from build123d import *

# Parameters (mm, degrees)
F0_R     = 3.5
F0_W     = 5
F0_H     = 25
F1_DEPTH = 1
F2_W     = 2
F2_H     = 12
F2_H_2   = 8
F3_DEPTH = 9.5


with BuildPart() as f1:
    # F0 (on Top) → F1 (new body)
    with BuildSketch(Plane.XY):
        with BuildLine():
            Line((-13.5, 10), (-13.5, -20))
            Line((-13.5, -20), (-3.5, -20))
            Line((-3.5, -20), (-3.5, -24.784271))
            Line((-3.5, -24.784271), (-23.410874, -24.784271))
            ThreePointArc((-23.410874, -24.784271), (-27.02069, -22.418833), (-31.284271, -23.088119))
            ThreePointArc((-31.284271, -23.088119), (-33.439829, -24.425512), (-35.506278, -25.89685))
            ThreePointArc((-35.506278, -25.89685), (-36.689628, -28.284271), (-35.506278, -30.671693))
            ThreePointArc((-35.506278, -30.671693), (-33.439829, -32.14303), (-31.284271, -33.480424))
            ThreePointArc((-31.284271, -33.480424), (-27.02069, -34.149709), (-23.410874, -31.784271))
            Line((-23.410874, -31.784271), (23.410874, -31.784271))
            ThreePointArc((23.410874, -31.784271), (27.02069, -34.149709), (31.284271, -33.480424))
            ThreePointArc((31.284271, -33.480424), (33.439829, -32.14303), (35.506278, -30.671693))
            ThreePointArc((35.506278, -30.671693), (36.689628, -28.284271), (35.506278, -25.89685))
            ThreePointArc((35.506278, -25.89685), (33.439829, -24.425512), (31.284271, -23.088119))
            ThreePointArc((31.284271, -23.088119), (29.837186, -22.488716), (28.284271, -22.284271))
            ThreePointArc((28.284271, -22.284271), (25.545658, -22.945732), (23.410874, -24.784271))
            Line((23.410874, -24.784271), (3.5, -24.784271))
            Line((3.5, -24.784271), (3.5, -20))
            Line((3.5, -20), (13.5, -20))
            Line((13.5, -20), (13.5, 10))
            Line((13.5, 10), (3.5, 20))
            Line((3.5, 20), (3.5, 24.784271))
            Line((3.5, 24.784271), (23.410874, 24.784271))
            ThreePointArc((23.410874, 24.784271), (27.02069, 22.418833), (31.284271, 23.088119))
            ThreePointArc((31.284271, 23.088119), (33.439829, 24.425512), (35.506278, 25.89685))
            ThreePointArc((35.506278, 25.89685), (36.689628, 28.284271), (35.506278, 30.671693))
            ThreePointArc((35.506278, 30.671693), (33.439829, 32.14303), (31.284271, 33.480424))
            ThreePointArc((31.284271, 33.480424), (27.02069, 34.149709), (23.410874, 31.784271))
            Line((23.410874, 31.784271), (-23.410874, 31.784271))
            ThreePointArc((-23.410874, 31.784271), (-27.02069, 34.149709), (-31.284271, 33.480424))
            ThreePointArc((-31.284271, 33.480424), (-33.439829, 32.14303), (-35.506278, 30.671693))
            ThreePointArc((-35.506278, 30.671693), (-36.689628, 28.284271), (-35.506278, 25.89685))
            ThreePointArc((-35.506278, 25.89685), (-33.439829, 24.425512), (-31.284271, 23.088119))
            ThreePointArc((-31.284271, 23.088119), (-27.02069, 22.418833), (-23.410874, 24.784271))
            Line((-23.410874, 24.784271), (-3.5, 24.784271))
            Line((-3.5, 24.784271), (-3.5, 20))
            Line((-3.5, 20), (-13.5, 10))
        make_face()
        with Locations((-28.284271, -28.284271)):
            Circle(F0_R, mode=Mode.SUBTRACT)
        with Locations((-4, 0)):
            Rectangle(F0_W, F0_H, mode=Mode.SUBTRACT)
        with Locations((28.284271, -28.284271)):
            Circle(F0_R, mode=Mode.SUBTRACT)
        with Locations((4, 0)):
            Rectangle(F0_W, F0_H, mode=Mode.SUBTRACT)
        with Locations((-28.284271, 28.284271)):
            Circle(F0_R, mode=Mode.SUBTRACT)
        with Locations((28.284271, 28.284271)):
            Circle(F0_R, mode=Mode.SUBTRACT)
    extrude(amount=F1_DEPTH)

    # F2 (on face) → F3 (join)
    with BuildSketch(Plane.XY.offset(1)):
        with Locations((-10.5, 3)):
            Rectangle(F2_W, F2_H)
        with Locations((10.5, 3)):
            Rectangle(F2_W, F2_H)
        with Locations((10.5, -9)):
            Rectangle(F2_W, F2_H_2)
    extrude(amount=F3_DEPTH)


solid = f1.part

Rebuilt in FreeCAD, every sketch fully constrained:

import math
import FreeCAD as App
import Part
import Sketcher

V = App.Vector
Q = App.Units.Quantity

doc = App.newDocument("Part")
params = doc.addObject("Spreadsheet::Sheet", "Params")
for row, (alias, value) in enumerate([
    ("sketch1_diameter", "7 mm"),
    ("sketch1_radius", "5.999999 mm"),
    ("sketch1_radius2", "2.999999 mm"),
    ("sketch1_width", "10 mm"),
    ("sketch1_width2", "5 mm"),
    ("pad1_length", "1 mm"),
    ("sketch2_width", "2 mm"),
    ("sketch2_height", "12 mm"),
    ("sketch2_height2", "8 mm"),
    ("pad2_length", "9.5 mm"),
], start=1):
    params.set(f"A{row}", alias)
    params.set(f"B{row}", "=" + value)
    params.setAlias(f"B{row}", alias)

body = doc.addObject("PartDesign::Body", "Body")

sketch1 = doc.addObject("Sketcher::SketchObject", "Sketch")
body.addObject(sketch1)
sketch1.AttachmentSupport = (doc.XY_Plane, [""])
sketch1.MapMode = "FlatFace"
sketch1.addGeometry(Part.LineSegment(V(-13.5, 10, 0), V(-13.5, -20, 0)), False)
sketch1.addGeometry(Part.LineSegment(V(-13.5, -20, 0), V(-3.5, -20, 0)), False)
sketch1.addGeometry(Part.LineSegment(V(-3.5, -20, 0), V(-3.5, -24.8, 0)), False)
sketch1.addGeometry(Part.LineSegment(V(-3.5, -24.8, 0), V(-23.4, -24.8, 0)), False)
sketch1.addGeometry(Part.ArcOfCircle(Part.Circle(V(-28.3, -28.3, 0), V(0, 0, 1), 6), math.radians(36), math.radians(120)), False)
sketch1.addGeometry(Part.ArcOfCircle(Part.Circle(V(-11.3, -57.7, 0), V(0, 0, 1), 40), math.radians(120), math.radians(127.27)), False)
sketch1.addGeometry(Part.ArcOfCircle(Part.Circle(V(-33.7, -28.3, 0), V(0, 0, 1), 3), math.radians(127), math.radians(233)), False)
sketch1.addGeometry(Part.ArcOfCircle(Part.Circle(V(-11.3, 1.2, 0), V(0, 0, 1), 40), math.radians(-127.27), math.radians(-120)), False)
sketch1.addGeometry(Part.ArcOfCircle(Part.Circle(V(-28.3, -28.3, 0), V(0, 0, 1), 6), math.radians(-120), math.radians(-36)), False)
sketch1.addGeometry(Part.LineSegment(V(-23.4, -31.8, 0), V(23.4, -31.8, 0)), False)
sketch1.addGeometry(Part.ArcOfCircle(Part.Circle(V(28.3, -28.3, 0), V(0, 0, 1), 6), math.radians(-144), math.radians(-60)), False)
sketch1.addGeometry(Part.ArcOfCircle(Part.Circle(V(11.3, 1.2, 0), V(0, 0, 1), 40), math.radians(-60), math.radians(-52.73)), False)
sketch1.addGeometry(Part.ArcOfCircle(Part.Circle(V(33.7, -28.3, 0), V(0, 0, 1), 3), math.radians(-53), math.radians(53)), False)
sketch1.addGeometry(Part.ArcOfCircle(Part.Circle(V(11.3, -57.7, 0), V(0, 0, 1), 40), math.radians(52.73), math.radians(60)), False)
sketch1.addGeometry(Part.ArcOfCircle(Part.Circle(V(28.3, -28.3, 0), V(0, 0, 1), 6), math.radians(60), math.radians(90)), False)
sketch1.addGeometry(Part.ArcOfCircle(Part.Circle(V(28.3, -28.3, 0), V(0, 0, 1), 6), math.radians(90), math.radians(144)), False)
sketch1.addGeometry(Part.LineSegment(V(23.4, -24.8, 0), V(3.5, -24.8, 0)), False)
sketch1.addGeometry(Part.LineSegment(V(3.5, -24.8, 0), V(3.5, -20, 0)), False)
sketch1.addGeometry(Part.LineSegment(V(3.5, -20, 0), V(13.5, -20, 0)), False)
sketch1.addGeometry(Part.LineSegment(V(13.5, -20, 0), V(13.5, 10, 0)), False)
sketch1.addGeometry(Part.LineSegment(V(13.5, 10, 0), V(3.5, 20, 0)), False)
sketch1.addGeometry(Part.LineSegment(V(3.5, 20, 0), V(3.5, 24.8, 0)), False)
sketch1.addGeometry(Part.LineSegment(V(3.5, 24.8, 0), V(23.4, 24.8, 0)), False)
sketch1.addGeometry(Part.ArcOfCircle(Part.Circle(V(28.3, 28.3, 0), V(0, 0, 1), 6), math.radians(-144), math.radians(-60)), False)
sketch1.addGeometry(Part.ArcOfCircle(Part.Circle(V(11.3, 57.7, 0), V(0, 0, 1), 40), math.radians(-60), math.radians(-52.73)), False)
sketch1.addGeometry(Part.ArcOfCircle(Part.Circle(V(33.7, 28.3, 0), V(0, 0, 1), 3), math.radians(-53), math.radians(53)), False)
sketch1.addGeometry(Part.ArcOfCircle(Part.Circle(V(11.3, -1.2, 0), V(0, 0, 1), 40), math.radians(52.73), math.radians(60)), False)
sketch1.addGeometry(Part.ArcOfCircle(Part.Circle(V(28.3, 28.3, 0), V(0, 0, 1), 6), math.radians(60), math.radians(144)), False)
sketch1.addGeometry(Part.LineSegment(V(23.4, 31.8, 0), V(-23.4, 31.8, 0)), False)
sketch1.addGeometry(Part.ArcOfCircle(Part.Circle(V(-28.3, 28.3, 0), V(0, 0, 1), 6), math.radians(36), math.radians(120)), False)
sketch1.addGeometry(Part.ArcOfCircle(Part.Circle(V(-11.3, -1.2, 0), V(0, 0, 1), 40), math.radians(120), math.radians(127.27)), False)
sketch1.addGeometry(Part.ArcOfCircle(Part.Circle(V(-33.7, 28.3, 0), V(0, 0, 1), 3), math.radians(127), math.radians(233)), False)
sketch1.addGeometry(Part.ArcOfCircle(Part.Circle(V(-11.3, 57.7, 0), V(0, 0, 1), 40), math.radians(-127.27), math.radians(-120)), False)
sketch1.addGeometry(Part.ArcOfCircle(Part.Circle(V(-28.3, 28.3, 0), V(0, 0, 1), 6), math.radians(-120), math.radians(-36)), False)
sketch1.addGeometry(Part.LineSegment(V(-23.4, 24.8, 0), V(-3.5, 24.8, 0)), False)
sketch1.addGeometry(Part.LineSegment(V(-3.5, 24.8, 0), V(-3.5, 20, 0)), False)
sketch1.addGeometry(Part.LineSegment(V(-3.5, 20, 0), V(-13.5, 10, 0)), False)
sketch1.addGeometry(Part.Circle(V(-28.3, -28.3, 0), V(0, 0, 1), 3.5), False)
sketch1.addGeometry(Part.LineSegment(V(-1.5, -12.5, 0), V(-6.5, -12.5, 0)), False)
sketch1.addGeometry(Part.LineSegment(V(-6.5, -12.5, 0), V(-6.5, 12.5, 0)), False)
sketch1.addGeometry(Part.LineSegment(V(-6.5, 12.5, 0), V(-1.5, 12.5, 0)), False)
sketch1.addGeometry(Part.LineSegment(V(-1.5, 12.5, 0), V(-1.5, -12.5, 0)), False)
sketch1.addGeometry(Part.Circle(V(28.3, -28.3, 0), V(0, 0, 1), 3.5), False)
sketch1.addGeometry(Part.LineSegment(V(6.5, -12.5, 0), V(1.5, -12.5, 0)), False)
sketch1.addGeometry(Part.LineSegment(V(1.5, -12.5, 0), V(1.5, 12.5, 0)), False)
sketch1.addGeometry(Part.LineSegment(V(1.5, 12.5, 0), V(6.5, 12.5, 0)), False)
sketch1.addGeometry(Part.LineSegment(V(6.5, 12.5, 0), V(6.5, -12.5, 0)), False)
sketch1.addGeometry(Part.Circle(V(-28.3, 28.3, 0), V(0, 0, 1), 3.5), False)
sketch1.addGeometry(Part.Circle(V(28.3, 28.3, 0), V(0, 0, 1), 3.5), False)
sketch1.addConstraint(Sketcher.Constraint("Coincident", 0, 2, 1, 1))
sketch1.addConstraint(Sketcher.Constraint("Coincident", 1, 2, 2, 1))
sketch1.addConstraint(Sketcher.Constraint("Coincident", 2, 2, 3, 1))
sketch1.addConstraint(Sketcher.Constraint("Coincident", 3, 2, 4, 1))
sketch1.addConstraint(Sketcher.Constraint("Tangent", 4, 2, 5, 1))
sketch1.addConstraint(Sketcher.Constraint("Tangent", 5, 2, 6, 1))
sketch1.addConstraint(Sketcher.Constraint("Tangent", 6, 2, 7, 1))
sketch1.addConstraint(Sketcher.Constraint("Tangent", 7, 2, 8, 1))
sketch1.addConstraint(Sketcher.Constraint("Coincident", 8, 2, 9, 1))
sketch1.addConstraint(Sketcher.Constraint("Coincident", 9, 2, 10, 1))
sketch1.addConstraint(Sketcher.Constraint("Tangent", 10, 2, 11, 1))
sketch1.addConstraint(Sketcher.Constraint("Tangent", 11, 2, 12, 1))
sketch1.addConstraint(Sketcher.Constraint("Tangent", 12, 2, 13, 1))
sketch1.addConstraint(Sketcher.Constraint("Tangent", 13, 2, 14, 1))
sketch1.addConstraint(Sketcher.Constraint("Tangent", 14, 2, 15, 1))
sketch1.addConstraint(Sketcher.Constraint("Coincident", 15, 2, 16, 1))
sketch1.addConstraint(Sketcher.Constraint("Coincident", 16, 2, 17, 1))
sketch1.addConstraint(Sketcher.Constraint("Coincident", 17, 2, 18, 1))
sketch1.addConstraint(Sketcher.Constraint("Coincident", 18, 2, 19, 1))
sketch1.addConstraint(Sketcher.Constraint("Coincident", 19, 2, 20, 1))
sketch1.addConstraint(Sketcher.Constraint("Coincident", 20, 2, 21, 1))
sketch1.addConstraint(Sketcher.Constraint("Coincident", 21, 2, 22, 1))
sketch1.addConstraint(Sketcher.Constraint("Coincident", 22, 2, 23, 1))
sketch1.addConstraint(Sketcher.Constraint("Tangent", 23, 2, 24, 1))
sketch1.addConstraint(Sketcher.Constraint("Tangent", 24, 2, 25, 1))
sketch1.addConstraint(Sketcher.Constraint("Tangent", 25, 2, 26, 1))
sketch1.addConstraint(Sketcher.Constraint("Tangent", 26, 2, 27, 1))
sketch1.addConstraint(Sketcher.Constraint("Coincident", 27, 2, 28, 1))
sketch1.addConstraint(Sketcher.Constraint("Coincident", 28, 2, 29, 1))
sketch1.addConstraint(Sketcher.Constraint("Tangent", 29, 2, 30, 1))
sketch1.addConstraint(Sketcher.Constraint("Tangent", 30, 2, 31, 1))
sketch1.addConstraint(Sketcher.Constraint("Tangent", 31, 2, 32, 1))
sketch1.addConstraint(Sketcher.Constraint("Tangent", 32, 2, 33, 1))
sketch1.addConstraint(Sketcher.Constraint("Coincident", 33, 2, 34, 1))
sketch1.addConstraint(Sketcher.Constraint("Coincident", 34, 2, 35, 1))
sketch1.addConstraint(Sketcher.Constraint("Coincident", 35, 2, 36, 1))
sketch1.addConstraint(Sketcher.Constraint("Coincident", 36, 2, 0, 1))
sketch1.addConstraint(Sketcher.Constraint("Coincident", 38, 2, 39, 1))
sketch1.addConstraint(Sketcher.Constraint("Coincident", 39, 2, 40, 1))
sketch1.addConstraint(Sketcher.Constraint("Coincident", 40, 2, 41, 1))
sketch1.addConstraint(Sketcher.Constraint("Coincident", 41, 2, 38, 1))
sketch1.addConstraint(Sketcher.Constraint("Coincident", 43, 2, 44, 1))
sketch1.addConstraint(Sketcher.Constraint("Coincident", 44, 2, 45, 1))
sketch1.addConstraint(Sketcher.Constraint("Coincident", 45, 2, 46, 1))
sketch1.addConstraint(Sketcher.Constraint("Coincident", 46, 2, 43, 1))
sketch1.addConstraint(Sketcher.Constraint("Vertical", 0))
sketch1.addConstraint(Sketcher.Constraint("Horizontal", 1))
sketch1.addConstraint(Sketcher.Constraint("Vertical", 2))
sketch1.addConstraint(Sketcher.Constraint("Horizontal", 3))
sketch1.addConstraint(Sketcher.Constraint("Horizontal", 9))
sketch1.addConstraint(Sketcher.Constraint("Horizontal", 16))
sketch1.addConstraint(Sketcher.Constraint("Vertical", 17))
sketch1.addConstraint(Sketcher.Constraint("Horizontal", 18))
sketch1.addConstraint(Sketcher.Constraint("Vertical", 19))
sketch1.addConstraint(Sketcher.Constraint("Vertical", 21))
sketch1.addConstraint(Sketcher.Constraint("Horizontal", 22))
sketch1.addConstraint(Sketcher.Constraint("Horizontal", 28))
sketch1.addConstraint(Sketcher.Constraint("Horizontal", 34))
sketch1.addConstraint(Sketcher.Constraint("Vertical", 35))
sketch1.addConstraint(Sketcher.Constraint("Horizontal", 38))
sketch1.addConstraint(Sketcher.Constraint("Vertical", 39))
sketch1.addConstraint(Sketcher.Constraint("Horizontal", 40))
sketch1.addConstraint(Sketcher.Constraint("Vertical", 41))
sketch1.addConstraint(Sketcher.Constraint("Horizontal", 43))
sketch1.addConstraint(Sketcher.Constraint("Vertical", 44))
sketch1.addConstraint(Sketcher.Constraint("Horizontal", 45))
sketch1.addConstraint(Sketcher.Constraint("Vertical", 46))
sketch1.addConstraint(Sketcher.Constraint("Coincident", 8, 3, 4, 3))
sketch1.addConstraint(Sketcher.Constraint("Coincident", 15, 3, 10, 3))
sketch1.addConstraint(Sketcher.Constraint("Coincident", 27, 3, 23, 3))
sketch1.addConstraint(Sketcher.Constraint("Coincident", 33, 3, 29, 3))
sketch1.addConstraint(Sketcher.Constraint("Coincident", 37, 3, 4, 3))
sketch1.addConstraint(Sketcher.Constraint("Coincident", 42, 3, 10, 3))
sketch1.addConstraint(Sketcher.Constraint("Coincident", 47, 3, 29, 3))
sketch1.addConstraint(Sketcher.Constraint("Coincident", 48, 3, 23, 3))
sketch1.addConstraint(Sketcher.Constraint("Equal", 4, 8))
sketch1.addConstraint(Sketcher.Constraint("Equal", 8, 10))
sketch1.addConstraint(Sketcher.Constraint("Equal", 7, 11))
sketch1.addConstraint(Sketcher.Constraint("Equal", 6, 12))
sketch1.addConstraint(Sketcher.Constraint("Equal", 5, 13))
sketch1.addConstraint(Sketcher.Constraint("Equal", 10, 15))
sketch1.addConstraint(Sketcher.Constraint("Equal", 15, 23))
sketch1.addConstraint(Sketcher.Constraint("Equal", 13, 24))
sketch1.addConstraint(Sketcher.Constraint("Equal", 12, 25))
sketch1.addConstraint(Sketcher.Constraint("Equal", 11, 26))
sketch1.addConstraint(Sketcher.Constraint("Equal", 23, 27))
sketch1.addConstraint(Sketcher.Constraint("Equal", 27, 29))
sketch1.addConstraint(Sketcher.Constraint("Equal", 26, 30))
sketch1.addConstraint(Sketcher.Constraint("Equal", 25, 31))
sketch1.addConstraint(Sketcher.Constraint("Equal", 24, 32))
sketch1.addConstraint(Sketcher.Constraint("Equal", 29, 33))
sketch1.addConstraint(Sketcher.Constraint("Equal", 37, 42))
sketch1.addConstraint(Sketcher.Constraint("Equal", 42, 47))
sketch1.addConstraint(Sketcher.Constraint("Equal", 47, 48))
sketch1.addConstraint(Sketcher.Constraint("Symmetric", 4, 3, 23, 3, -1, 1))
sketch1.addConstraint(Sketcher.Constraint("Symmetric", 6, 3, 25, 3, -1, 1))
sketch1.addConstraint(Sketcher.Constraint("Symmetric", 10, 3, 29, 3, -1, 1))
sketch1.addConstraint(Sketcher.Constraint("Symmetric", 12, 3, 31, 3, -1, 1))
sketch1.addConstraint(Sketcher.Constraint("Symmetric", 1, 2, 20, 2, -1, 1))
sketch1.addConstraint(Sketcher.Constraint("Symmetric", 16, 2, 34, 2, -1, 1))
sketch1.addConstraint(Sketcher.Constraint("Symmetric", 40, 2, 43, 2, -1, 1))
sketch1.addConstraint(Sketcher.Constraint("Symmetric", 38, 2, 45, 2, -1, 1))
sketch1.addConstraint(Sketcher.Constraint("Symmetric", 4, 3, 10, 3, -2))
sketch1.addConstraint(Sketcher.Constraint("Symmetric", 6, 3, 12, 3, -2))
sketch1.addConstraint(Sketcher.Constraint("Symmetric", 2, 2, 16, 2, -2))
sketch1.addConstraint(Sketcher.Constraint("Symmetric", 0, 2, 18, 2, -2))
sketch1.addConstraint(Sketcher.Constraint("Perpendicular", 20, 36))
sketch1.addConstraint(Sketcher.Constraint("Horizontal", 4, 3, 6, 3))
sketch1.addConstraint(Sketcher.Constraint("Horizontal", 5, 3, 13, 3))
sketch1.addConstraint(Sketcher.Constraint("Horizontal", 22, 2, 33, 2))
sketch1.addConstraint(Sketcher.Constraint("Horizontal", 20, 2, 35, 2))
sketch1.addConstraint(Sketcher.Constraint("Horizontal", 19, 2, 36, 2))
sketch1.addConstraint(Sketcher.Constraint("Horizontal", 41, 2, 43, 2))
sketch1.addConstraint(Sketcher.Constraint("Vertical", 3, 2, 8, 2))
sketch1.addConstraint(Sketcher.Constraint("Vertical", 48, 3, 14, 2))
sketch1.addConstraint(Sketcher.Constraint("Vertical", 22, 2, 27, 2))
sketch1.addConstraint(Sketcher.Constraint("Diameter", 37, Q("7 mm")))
sketch1.addConstraint(Sketcher.Constraint("Radius", 4, Q("5.999999 mm")))
sketch1.addConstraint(Sketcher.Constraint("Radius", 6, Q("2.999999 mm")))
sketch1.addConstraint(Sketcher.Constraint("DistanceX", 1, 1, 1, 2, Q("10 mm")))
sketch1.addConstraint(Sketcher.Constraint("DistanceX", 38, 2, 38, 1, Q("5 mm")))
sketch1.addConstraint(Sketcher.Constraint("DistanceY", 0, 2, 0, 1, Q("30 mm")))
sketch1.addConstraint(Sketcher.Constraint("DistanceY", 39, 1, 39, 2, Q("25 mm")))
sketch1.addConstraint(Sketcher.Constraint("DistanceX", 0, 2, -1, 1, Q("13.5 mm")))
sketch1.addConstraint(Sketcher.Constraint("DistanceX", 38, 2, -1, 1, Q("6.5 mm")))
sketch1.addConstraint(Sketcher.Constraint("Radius", 5, Q("39.999598 mm")))
sketch1.addConstraint(Sketcher.Constraint("Radius", 7, Q("40.000011 mm")))
sketch1.addConstraint(Sketcher.Constraint("DistanceY", 2, 2, 2, 1, Q("4.784271 mm")))
sketch1.addConstraint(Sketcher.Constraint("DistanceY", 5, 3, -1, 1, Q("57.7288 mm")))
sketch1.addConstraint(Sketcher.Constraint("DistanceY", -1, 1, 7, 3, Q("1.160602 mm")))
sketch1.addConstraint(Sketcher.Constraint("DistanceX", 3, 2, 3, 1, Q("19.910874 mm")))
sketch1.setExpression("Constraints[116]", "Params.sketch1_diameter")
sketch1.setExpression("Constraints[117]", "Params.sketch1_radius")
sketch1.setExpression("Constraints[118]", "Params.sketch1_radius2")
sketch1.setExpression("Constraints[119]", "Params.sketch1_width")
sketch1.setExpression("Constraints[120]", "Params.sketch1_width2")
pad1 = doc.addObject("PartDesign::Pad", "Pad")
body.addObject(pad1)
pad1.Profile = sketch1
pad1.setExpression("Length", "Params.pad1_length")

sketch2 = doc.addObject("Sketcher::SketchObject", "Sketch001")
body.addObject(sketch2)
sketch2.AttachmentSupport = (doc.XY_Plane, [""])
sketch2.MapMode = "FlatFace"
sketch2.AttachmentOffset = App.Placement(V(0, 0, 1), App.Rotation())
sketch2.addGeometry(Part.LineSegment(V(-11.5, 9, 0), V(-11.5, -3, 0)), False)
sketch2.addGeometry(Part.LineSegment(V(-11.5, -3, 0), V(-9.5, -3, 0)), False)
sketch2.addGeometry(Part.LineSegment(V(-9.5, -3, 0), V(-9.5, 9, 0)), False)
sketch2.addGeometry(Part.LineSegment(V(-9.5, 9, 0), V(-11.5, 9, 0)), False)
sketch2.addGeometry(Part.LineSegment(V(9.5, 9, 0), V(9.5, -3, 0)), False)
sketch2.addGeometry(Part.LineSegment(V(9.5, -3, 0), V(11.5, -3, 0)), False)
sketch2.addGeometry(Part.LineSegment(V(11.5, -3, 0), V(11.5, 9, 0)), False)
sketch2.addGeometry(Part.LineSegment(V(11.5, 9, 0), V(9.5, 9, 0)), False)
sketch2.addGeometry(Part.LineSegment(V(9.5, -5, 0), V(9.5, -13, 0)), False)
sketch2.addGeometry(Part.LineSegment(V(9.5, -13, 0), V(11.5, -13, 0)), False)
sketch2.addGeometry(Part.LineSegment(V(11.5, -13, 0), V(11.5, -5, 0)), False)
sketch2.addGeometry(Part.LineSegment(V(11.5, -5, 0), V(9.5, -5, 0)), False)
sketch2.addConstraint(Sketcher.Constraint("Coincident", 0, 2, 1, 1))
sketch2.addConstraint(Sketcher.Constraint("Coincident", 1, 2, 2, 1))
sketch2.addConstraint(Sketcher.Constraint("Coincident", 2, 2, 3, 1))
sketch2.addConstraint(Sketcher.Constraint("Coincident", 3, 2, 0, 1))
sketch2.addConstraint(Sketcher.Constraint("Coincident", 4, 2, 5, 1))
sketch2.addConstraint(Sketcher.Constraint("Coincident", 5, 2, 6, 1))
sketch2.addConstraint(Sketcher.Constraint("Coincident", 6, 2, 7, 1))
sketch2.addConstraint(Sketcher.Constraint("Coincident", 7, 2, 4, 1))
sketch2.addConstraint(Sketcher.Constraint("Coincident", 8, 2, 9, 1))
sketch2.addConstraint(Sketcher.Constraint("Coincident", 9, 2, 10, 1))
sketch2.addConstraint(Sketcher.Constraint("Coincident", 10, 2, 11, 1))
sketch2.addConstraint(Sketcher.Constraint("Coincident", 11, 2, 8, 1))
sketch2.addConstraint(Sketcher.Constraint("Vertical", 0))
sketch2.addConstraint(Sketcher.Constraint("Horizontal", 1))
sketch2.addConstraint(Sketcher.Constraint("Vertical", 2))
sketch2.addConstraint(Sketcher.Constraint("Horizontal", 3))
sketch2.addConstraint(Sketcher.Constraint("Vertical", 4))
sketch2.addConstraint(Sketcher.Constraint("Horizontal", 5))
sketch2.addConstraint(Sketcher.Constraint("Vertical", 6))
sketch2.addConstraint(Sketcher.Constraint("Horizontal", 7))
sketch2.addConstraint(Sketcher.Constraint("Vertical", 8))
sketch2.addConstraint(Sketcher.Constraint("Horizontal", 9))
sketch2.addConstraint(Sketcher.Constraint("Vertical", 10))
sketch2.addConstraint(Sketcher.Constraint("Horizontal", 11))
sketch2.addConstraint(Sketcher.Constraint("Symmetric", 1, 2, 4, 2, -2))
sketch2.addConstraint(Sketcher.Constraint("Symmetric", 3, 2, 6, 2, -2))
sketch2.addConstraint(Sketcher.Constraint("Vertical", 7, 2, 8, 2))
sketch2.addConstraint(Sketcher.Constraint("Vertical", 6, 2, 9, 2))
sketch2.addConstraint(Sketcher.Constraint("DistanceX", 1, 1, 1, 2, Q("2 mm")))
sketch2.addConstraint(Sketcher.Constraint("DistanceY", 0, 2, 0, 1, Q("12 mm")))
sketch2.addConstraint(Sketcher.Constraint("DistanceY", 8, 2, 8, 1, Q("8 mm")))
sketch2.addConstraint(Sketcher.Constraint("DistanceY", 0, 2, -1, 1, Q("3 mm")))
sketch2.addConstraint(Sketcher.Constraint("DistanceY", 8, 2, -1, 1, Q("13 mm")))
sketch2.addConstraint(Sketcher.Constraint("DistanceX", 1, 2, 4, 2, Q("19 mm")))
sketch2.setExpression("Constraints[28]", "Params.sketch2_width")
sketch2.setExpression("Constraints[29]", "Params.sketch2_height")
sketch2.setExpression("Constraints[30]", "Params.sketch2_height2")
pad2 = doc.addObject("PartDesign::Pad", "Pad001")
body.addObject(pad2)
pad2.Profile = sketch2
pad2.setExpression("Length", "Params.pad2_length")

doc.recompute()
